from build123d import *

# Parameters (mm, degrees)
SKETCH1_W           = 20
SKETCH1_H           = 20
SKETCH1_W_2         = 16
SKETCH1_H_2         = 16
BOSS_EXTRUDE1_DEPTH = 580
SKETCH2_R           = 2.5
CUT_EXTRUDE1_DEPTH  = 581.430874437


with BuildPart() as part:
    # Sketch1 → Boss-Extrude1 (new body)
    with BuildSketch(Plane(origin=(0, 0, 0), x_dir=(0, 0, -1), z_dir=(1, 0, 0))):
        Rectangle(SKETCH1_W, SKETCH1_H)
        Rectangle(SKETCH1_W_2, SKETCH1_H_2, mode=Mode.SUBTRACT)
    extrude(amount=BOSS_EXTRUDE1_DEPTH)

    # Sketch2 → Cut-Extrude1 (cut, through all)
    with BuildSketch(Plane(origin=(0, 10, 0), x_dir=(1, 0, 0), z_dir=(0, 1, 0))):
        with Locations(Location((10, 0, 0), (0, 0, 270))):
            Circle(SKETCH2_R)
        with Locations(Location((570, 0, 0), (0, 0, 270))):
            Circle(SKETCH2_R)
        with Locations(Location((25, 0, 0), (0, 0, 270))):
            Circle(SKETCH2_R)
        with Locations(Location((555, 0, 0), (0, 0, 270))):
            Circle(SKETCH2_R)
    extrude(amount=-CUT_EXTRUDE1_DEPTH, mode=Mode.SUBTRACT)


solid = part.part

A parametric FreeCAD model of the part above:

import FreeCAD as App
import Part
import Sketcher

V = App.Vector
Q = App.Units.Quantity


def add_polygon(sketch, points):
    """Adds a closed chain of lines whose ends are joined by coincident constraints."""
    first, n = sketch.GeometryCount, len(points)
    for a, b in zip(points, points[1:] + points[:1]):
        sketch.addGeometry(Part.LineSegment(App.Vector(*a, 0), App.Vector(*b, 0)), False)
    for i in range(n):
        sketch.addConstraint(Sketcher.Constraint("Coincident", first + i, 2, first + (i + 1) % n, 1))

doc = App.newDocument("Part")
body = doc.addObject("PartDesign::Body", "Body")

# Sketch on YZ plane
sketch1 = doc.addObject("Sketcher::SketchObject", "Sketch")
body.addObject(sketch1)
sketch1.AttachmentSupport = (doc.YZ_Plane, [""])
sketch1.MapMode = "FlatFace"
add_polygon(sketch1, [(10, 10), (-10, 10), (-10, -10), (10, -10)])  # lines 0-3
add_polygon(sketch1, [(-8, -8), (-8, 8), (8, 8), (8, -8)])  # lines 4-7
sketch1.addConstraint([
    Sketcher.Constraint("Horizontal", 0),
    Sketcher.Constraint("Vertical", 1),
    Sketcher.Constraint("Horizontal", 2),
    Sketcher.Constraint("Vertical", 3),
    Sketcher.Constraint("Vertical", 4),
    Sketcher.Constraint("Horizontal", 5),
    Sketcher.Constraint("Vertical", 6),
    Sketcher.Constraint("Horizontal", 7),
    Sketcher.Constraint("Symmetric", 0, 2, 2, 2, -1, 1),
    Sketcher.Constraint("Symmetric", 4, 2, 6, 2, -1, 1),
    Sketcher.Constraint("Equal", 2, 1),
    Sketcher.Constraint("Equal", 7, 4),
    Sketcher.Constraint("DistanceX", 0, 2, 0, 1, Q("20 mm")),
    Sketcher.Constraint("DistanceX", 5, 1, 5, 2, Q("16 mm")),
])
pad1 = doc.addObject("PartDesign::Pad", "Pad")
body.addObject(pad1)
pad1.Profile = sketch1
pad1.Length = 580

# Sketch on XZ plane
sketch2 = doc.addObject("Sketcher::SketchObject", "Sketch001")
body.addObject(sketch2)
sketch2.AttachmentSupport = (doc.XZ_Plane, [""])
sketch2.MapMode = "FlatFace"
sketch2.AttachmentOffset = App.Placement(V(0, 0, -10), App.Rotation())
sketch2.addGeometry([
    Part.Circle(V(10, 0, 0), V(0, 0, 1), 2.5),
    Part.Circle(V(570, 0, 0), V(0, 0, 1), 2.5),
    Part.Circle(V(25, 0, 0), V(0, 0, 1), 2.5),
    Part.Circle(V(555, 0, 0), V(0, 0, 1), 2.5),
], False)
sketch2.addConstraint([
    Sketcher.Constraint("Equal", 0, 1),
    Sketcher.Constraint("Equal", 1, 2),
    Sketcher.Constraint("Equal", 2, 3),
    Sketcher.Constraint("PointOnObject", 0, 3, -1),
    Sketcher.Constraint("PointOnObject", 1, 3, -1),
    Sketcher.Constraint("PointOnObject", 2, 3, -1),
    Sketcher.Constraint("PointOnObject", 3, 3, -1),
    Sketcher.Constraint("Diameter", 0, Q("5 mm")),
    Sketcher.Constraint("DistanceX", -1, 1, 0, 3, Q("10 mm")),
    Sketcher.Constraint("DistanceX", -1, 1, 1, 3, Q("570 mm")),
    Sketcher.Constraint("DistanceX", -1, 1, 2, 3, Q("25 mm")),
    Sketcher.Constraint("DistanceX", -1, 1, 3, 3, Q("555 mm")),
])
pocket1 = doc.addObject("PartDesign::Pocket", "Pocket")
body.addObject(pocket1)
pocket1.Profile = sketch2
pocket1.Type = "ThroughAll"
pocket1.Reversed = True

doc.recompute()
